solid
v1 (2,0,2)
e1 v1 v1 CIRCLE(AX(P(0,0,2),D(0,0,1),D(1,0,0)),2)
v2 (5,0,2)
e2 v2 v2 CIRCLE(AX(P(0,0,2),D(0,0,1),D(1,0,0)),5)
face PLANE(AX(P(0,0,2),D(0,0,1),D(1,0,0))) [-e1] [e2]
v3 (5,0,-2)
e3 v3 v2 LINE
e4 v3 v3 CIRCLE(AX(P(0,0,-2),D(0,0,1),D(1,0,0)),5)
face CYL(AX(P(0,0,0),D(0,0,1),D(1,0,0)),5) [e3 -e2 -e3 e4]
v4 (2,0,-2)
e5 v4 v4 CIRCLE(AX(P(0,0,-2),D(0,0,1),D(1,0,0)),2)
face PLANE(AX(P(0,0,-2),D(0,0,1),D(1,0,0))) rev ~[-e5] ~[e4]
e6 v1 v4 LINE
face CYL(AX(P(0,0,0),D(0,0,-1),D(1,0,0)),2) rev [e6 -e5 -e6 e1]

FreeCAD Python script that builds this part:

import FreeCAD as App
import Part
import Sketcher

V = App.Vector

doc = App.newDocument("Part")
body = doc.addObject("PartDesign::Body", "Body")

# Sketch on XY plane
sketch1 = body.newObject("Sketcher::SketchObject", "Sketch")
sketch1.AttachmentSupport = (doc.getObject("XY_Plane"), [""])
sketch1.MapMode = "FlatFace"
sketch1.addGeometry([
    Part.Circle(V(0, 0, 0), V(0, 0, 1), 5),
    Part.Circle(V(0, 0, 0), V(0, 0, 1), 2),
], False)
sketch1.addConstraint([
    Sketcher.Constraint("Coincident", 0, 3, -1, 1),
    Sketcher.Constraint("Coincident", 1, 3, -1, 1),
    Sketcher.Constraint("Diameter", 0, 10.0),
    Sketcher.Constraint("Diameter", 1, 4.0),
])
pad1 = body.newObject("PartDesign::Pad", "Pad")
pad1.Profile = sketch1
pad1.Length = 4
pad1.Midplane = True

doc.recompute()
